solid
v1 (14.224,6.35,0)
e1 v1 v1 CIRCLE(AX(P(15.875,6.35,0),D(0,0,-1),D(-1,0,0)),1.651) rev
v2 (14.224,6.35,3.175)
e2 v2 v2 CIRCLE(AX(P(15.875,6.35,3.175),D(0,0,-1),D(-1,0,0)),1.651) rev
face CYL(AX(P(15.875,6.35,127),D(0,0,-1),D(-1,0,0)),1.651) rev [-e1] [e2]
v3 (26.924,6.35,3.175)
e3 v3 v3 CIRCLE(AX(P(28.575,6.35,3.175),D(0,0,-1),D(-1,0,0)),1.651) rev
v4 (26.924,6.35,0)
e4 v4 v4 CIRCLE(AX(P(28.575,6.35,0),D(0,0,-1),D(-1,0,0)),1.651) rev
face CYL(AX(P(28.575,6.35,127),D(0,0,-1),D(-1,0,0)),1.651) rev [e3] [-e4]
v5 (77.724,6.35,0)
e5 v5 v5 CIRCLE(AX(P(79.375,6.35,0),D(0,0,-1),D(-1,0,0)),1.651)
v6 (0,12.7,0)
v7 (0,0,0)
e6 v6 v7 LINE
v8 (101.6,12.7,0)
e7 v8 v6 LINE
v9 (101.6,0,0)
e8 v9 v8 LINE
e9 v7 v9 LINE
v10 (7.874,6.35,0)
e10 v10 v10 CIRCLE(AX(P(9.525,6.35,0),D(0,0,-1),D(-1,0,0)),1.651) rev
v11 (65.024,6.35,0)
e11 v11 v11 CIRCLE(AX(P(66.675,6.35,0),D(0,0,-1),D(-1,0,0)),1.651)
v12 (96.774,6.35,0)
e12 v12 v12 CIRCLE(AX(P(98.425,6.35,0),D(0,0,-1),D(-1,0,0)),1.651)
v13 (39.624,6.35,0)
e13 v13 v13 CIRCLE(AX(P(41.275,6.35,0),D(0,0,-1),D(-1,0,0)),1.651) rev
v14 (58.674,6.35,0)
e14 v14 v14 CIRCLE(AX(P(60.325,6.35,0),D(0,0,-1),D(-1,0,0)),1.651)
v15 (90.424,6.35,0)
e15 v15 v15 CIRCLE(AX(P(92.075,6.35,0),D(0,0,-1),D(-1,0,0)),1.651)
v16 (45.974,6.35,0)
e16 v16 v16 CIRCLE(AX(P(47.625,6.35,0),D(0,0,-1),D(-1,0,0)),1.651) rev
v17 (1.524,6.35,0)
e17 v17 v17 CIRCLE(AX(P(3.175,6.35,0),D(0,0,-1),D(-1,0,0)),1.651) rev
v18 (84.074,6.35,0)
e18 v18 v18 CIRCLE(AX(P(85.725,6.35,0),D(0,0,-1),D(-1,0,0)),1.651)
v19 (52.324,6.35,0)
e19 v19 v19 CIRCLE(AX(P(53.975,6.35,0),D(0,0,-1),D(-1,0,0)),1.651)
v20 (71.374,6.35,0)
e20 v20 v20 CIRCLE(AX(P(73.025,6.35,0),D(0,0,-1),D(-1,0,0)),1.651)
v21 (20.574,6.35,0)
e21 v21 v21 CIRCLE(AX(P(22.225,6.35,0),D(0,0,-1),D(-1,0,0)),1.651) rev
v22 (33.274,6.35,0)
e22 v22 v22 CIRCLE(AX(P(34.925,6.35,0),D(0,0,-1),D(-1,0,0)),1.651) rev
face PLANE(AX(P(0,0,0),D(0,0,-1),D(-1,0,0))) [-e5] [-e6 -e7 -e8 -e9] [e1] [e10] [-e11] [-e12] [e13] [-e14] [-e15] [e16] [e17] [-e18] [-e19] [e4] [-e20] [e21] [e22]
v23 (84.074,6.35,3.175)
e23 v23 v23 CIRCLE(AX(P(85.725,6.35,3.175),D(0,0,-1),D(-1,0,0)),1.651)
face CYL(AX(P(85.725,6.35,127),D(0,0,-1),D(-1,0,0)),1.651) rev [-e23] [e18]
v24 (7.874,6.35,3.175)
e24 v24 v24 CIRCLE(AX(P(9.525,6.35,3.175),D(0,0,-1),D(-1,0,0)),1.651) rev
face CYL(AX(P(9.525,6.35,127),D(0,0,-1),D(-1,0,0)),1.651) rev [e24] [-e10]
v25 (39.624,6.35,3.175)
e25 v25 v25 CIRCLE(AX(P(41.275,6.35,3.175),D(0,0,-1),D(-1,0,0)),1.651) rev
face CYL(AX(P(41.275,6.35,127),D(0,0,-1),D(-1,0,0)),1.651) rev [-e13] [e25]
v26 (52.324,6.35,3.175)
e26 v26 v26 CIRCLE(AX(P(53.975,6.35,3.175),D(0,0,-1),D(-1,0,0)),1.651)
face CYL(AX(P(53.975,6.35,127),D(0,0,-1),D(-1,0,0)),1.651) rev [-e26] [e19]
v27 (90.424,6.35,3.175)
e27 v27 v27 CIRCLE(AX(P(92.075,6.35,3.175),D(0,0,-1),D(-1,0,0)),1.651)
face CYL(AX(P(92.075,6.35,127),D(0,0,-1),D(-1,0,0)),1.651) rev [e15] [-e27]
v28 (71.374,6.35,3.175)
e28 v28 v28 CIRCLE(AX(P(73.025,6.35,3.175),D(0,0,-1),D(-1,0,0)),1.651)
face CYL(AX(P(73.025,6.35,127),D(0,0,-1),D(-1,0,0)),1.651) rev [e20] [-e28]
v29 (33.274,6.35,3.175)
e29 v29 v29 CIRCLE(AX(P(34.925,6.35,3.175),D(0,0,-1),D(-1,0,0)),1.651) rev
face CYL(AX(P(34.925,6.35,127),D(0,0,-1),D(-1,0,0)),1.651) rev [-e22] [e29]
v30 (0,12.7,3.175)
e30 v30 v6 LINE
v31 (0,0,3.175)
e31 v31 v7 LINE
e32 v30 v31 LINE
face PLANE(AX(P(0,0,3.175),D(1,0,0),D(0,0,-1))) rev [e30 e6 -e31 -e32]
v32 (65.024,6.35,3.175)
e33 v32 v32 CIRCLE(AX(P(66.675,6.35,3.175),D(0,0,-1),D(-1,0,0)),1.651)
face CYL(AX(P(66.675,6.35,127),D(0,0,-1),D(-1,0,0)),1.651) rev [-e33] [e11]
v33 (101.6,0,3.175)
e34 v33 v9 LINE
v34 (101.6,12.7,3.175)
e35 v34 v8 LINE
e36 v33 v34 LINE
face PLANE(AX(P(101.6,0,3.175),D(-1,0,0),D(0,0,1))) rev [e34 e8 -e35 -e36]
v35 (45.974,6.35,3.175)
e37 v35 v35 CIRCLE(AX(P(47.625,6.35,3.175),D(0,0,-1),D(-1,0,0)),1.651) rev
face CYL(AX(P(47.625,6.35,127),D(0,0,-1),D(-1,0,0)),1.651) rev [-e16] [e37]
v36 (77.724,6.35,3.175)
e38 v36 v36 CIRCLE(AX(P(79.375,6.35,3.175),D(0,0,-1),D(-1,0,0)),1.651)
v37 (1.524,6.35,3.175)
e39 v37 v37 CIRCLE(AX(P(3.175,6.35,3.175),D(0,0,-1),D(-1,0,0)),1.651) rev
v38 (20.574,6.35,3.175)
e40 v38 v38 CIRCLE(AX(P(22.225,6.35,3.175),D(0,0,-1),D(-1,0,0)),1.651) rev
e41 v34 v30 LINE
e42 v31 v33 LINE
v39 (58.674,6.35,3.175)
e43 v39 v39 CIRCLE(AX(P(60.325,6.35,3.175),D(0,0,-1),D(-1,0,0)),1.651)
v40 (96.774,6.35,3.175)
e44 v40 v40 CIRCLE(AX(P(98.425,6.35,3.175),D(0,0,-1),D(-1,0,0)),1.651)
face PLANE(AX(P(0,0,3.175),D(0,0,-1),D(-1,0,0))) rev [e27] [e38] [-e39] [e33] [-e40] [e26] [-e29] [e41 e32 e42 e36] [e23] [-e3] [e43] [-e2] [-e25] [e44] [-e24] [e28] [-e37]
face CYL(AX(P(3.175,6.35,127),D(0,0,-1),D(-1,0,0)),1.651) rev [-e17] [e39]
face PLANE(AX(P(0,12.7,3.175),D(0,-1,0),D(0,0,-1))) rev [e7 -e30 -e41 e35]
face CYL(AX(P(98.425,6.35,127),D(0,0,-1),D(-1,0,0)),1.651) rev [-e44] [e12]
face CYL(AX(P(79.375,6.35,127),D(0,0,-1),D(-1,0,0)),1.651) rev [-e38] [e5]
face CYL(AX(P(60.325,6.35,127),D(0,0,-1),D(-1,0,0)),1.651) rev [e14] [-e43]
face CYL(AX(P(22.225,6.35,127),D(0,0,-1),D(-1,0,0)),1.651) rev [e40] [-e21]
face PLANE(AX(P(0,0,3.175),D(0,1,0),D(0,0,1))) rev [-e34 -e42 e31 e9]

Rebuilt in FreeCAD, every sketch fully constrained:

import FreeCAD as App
import Part
import Sketcher
from FreeCAD import Vector
Q = App.Units.Quantity


def add_polygon(sketch, points):
    """Adds a closed chain of lines whose ends are joined by coincident constraints."""
    first, n = sketch.GeometryCount, len(points)
    for a, b in zip(points, points[1:] + points[:1]):
        sketch.addGeometry(Part.LineSegment(App.Vector(*a, 0), App.Vector(*b, 0)), False)
    for i in range(n):
        sketch.addConstraint(Sketcher.Constraint("Coincident", first + i, 2, first + (i + 1) % n, 1))

doc = App.newDocument("Part")
body = doc.addObject("PartDesign::Body", "Body")

# Sketch on XY plane
sketch1 = doc.addObject("Sketcher::SketchObject", "Sketch")
body.addObject(sketch1)
sketch1.AttachmentSupport = (doc.XY_Plane, [""])
sketch1.MapMode = "FlatFace"
add_polygon(sketch1, [(0, 12.7), (0, 0), (101.6, 0), (101.6, 12.7)])  # lines 0-3
sketch1.addConstraint([
    Sketcher.Constraint("Vertical", 0),
    Sketcher.Constraint("Horizontal", 1),
    Sketcher.Constraint("Vertical", 2),
    Sketcher.Constraint("Horizontal", 3),
    Sketcher.Constraint("Coincident", 0, 2, -1, 1),
    Sketcher.Constraint("DistanceX", 1, 1, 1, 2, Q("4 in")),
    Sketcher.Constraint("DistanceY", 0, 2, 0, 1, Q("0.5 in")),
])
pad1 = doc.addObject("PartDesign::Pad", "Pad")
body.addObject(pad1)
pad1.Profile = sketch1
pad1.Length = Q("0.125 in")

# Sketch on XY plane
sketch2 = doc.addObject("Sketcher::SketchObject", "Sketch001")
body.addObject(sketch2)
sketch2.AttachmentSupport = (doc.XY_Plane, [""])
sketch2.MapMode = "FlatFace"
sketch2.addGeometry([
    Part.Circle(Vector(3.175, 6.35, 0), Vector(0, 0, 1), 1.651),  # 0
    Part.Circle(Vector(9.525, 6.35, 0), Vector(0, 0, 1), 1.651),  # 1
    Part.Circle(Vector(15.875, 6.35, 0), Vector(0, 0, 1), 1.651),  # 2
    Part.Circle(Vector(22.225, 6.35, 0), Vector(0, 0, 1), 1.651),  # 3
    Part.Circle(Vector(28.575, 6.35, 0), Vector(0, 0, 1), 1.651),  # 4
    Part.Circle(Vector(34.925, 6.35, 0), Vector(0, 0, 1), 1.651),  # 5
    Part.Circle(Vector(41.275, 6.35, 0), Vector(0, 0, 1), 1.651),  # 6
    Part.Circle(Vector(47.625, 6.35, 0), Vector(0, 0, 1), 1.651),  # 7
    Part.Circle(Vector(53.975, 6.35, 0), Vector(0, 0, 1), 1.651),  # 8
    Part.Circle(Vector(60.325, 6.35, 0), Vector(0, 0, 1), 1.651),  # 9
    Part.Circle(Vector(66.675, 6.35, 0), Vector(0, 0, 1), 1.651),  # 10
    Part.Circle(Vector(73.025, 6.35, 0), Vector(0, 0, 1), 1.651),  # 11
    Part.Circle(Vector(79.375, 6.35, 0), Vector(0, 0, 1), 1.651),  # 12
    Part.Circle(Vector(85.725, 6.35, 0), Vector(0, 0, 1), 1.651),  # 13
    Part.Circle(Vector(92.075, 6.35, 0), Vector(0, 0, 1), 1.651),  # 14
    Part.Circle(Vector(98.425, 6.35, 0), Vector(0, 0, 1), 1.651),  # 15
], False)
sketch2.addConstraint([
    Sketcher.Constraint("Equal", 0, 1),
    Sketcher.Constraint("Equal", 1, 2),
    Sketcher.Constraint("Equal", 2, 3),
    Sketcher.Constraint("Equal", 3, 4),
    Sketcher.Constraint("Equal", 4, 5),
    Sketcher.Constraint("Equal", 5, 6),
    Sketcher.Constraint("Equal", 6, 7),
    Sketcher.Constraint("Equal", 7, 8),
    Sketcher.Constraint("Equal", 8, 9),
    Sketcher.Constraint("Equal", 9, 10),
    Sketcher.Constraint("Equal", 10, 11),
    Sketcher.Constraint("Equal", 11, 12),
    Sketcher.Constraint("Equal", 12, 13),
    Sketcher.Constraint("Equal", 13, 14),
    Sketcher.Constraint("Equal", 14, 15),
    Sketcher.Constraint("Horizontal", 0, 3, 1, 3),
    Sketcher.Constraint("Horizontal", 1, 3, 2, 3),
    Sketcher.Constraint("Horizontal", 2, 3, 3, 3),
    Sketcher.Constraint("Horizontal", 3, 3, 4, 3),
    Sketcher.Constraint("Horizontal", 4, 3, 5, 3),
    Sketcher.Constraint("Horizontal", 5, 3, 6, 3),
    Sketcher.Constraint("Horizontal", 6, 3, 7, 3),
    Sketcher.Constraint("Horizontal", 7, 3, 8, 3),
    Sketcher.Constraint("Horizontal", 8, 3, 9, 3),
    Sketcher.Constraint("Horizontal", 9, 3, 10, 3),
    Sketcher.Constraint("Horizontal", 10, 3, 11, 3),
    Sketcher.Constraint("Horizontal", 11, 3, 12, 3),
    Sketcher.Constraint("Horizontal", 12, 3, 13, 3),
    Sketcher.Constraint("Horizontal", 13, 3, 14, 3),
    Sketcher.Constraint("Horizontal", 14, 3, 15, 3),
    Sketcher.Constraint("Diameter", 0, Q("0.13 in")),
    Sketcher.Constraint("DistanceX", 0, 3, 4, 3, Q("1 in")),
    Sketcher.Constraint("DistanceX", 1, 3, 5, 3, Q("1 in")),
    Sketcher.Constraint("DistanceX", 2, 3, 6, 3, Q("1 in")),
    Sketcher.Constraint("DistanceX", 3, 3, 7, 3, Q("1 in")),
    Sketcher.Constraint("DistanceX", 4, 3, 8, 3, Q("1 in")),
    Sketcher.Constraint("DistanceX", 5, 3, 9, 3, Q("1 in")),
    Sketcher.Constraint("DistanceX", 6, 3, 10, 3, Q("1 in")),
    Sketcher.Constraint("DistanceX", 7, 3, 11, 3, Q("1 in")),
    Sketcher.Constraint("DistanceX", 8, 3, 12, 3, Q("1 in")),
    Sketcher.Constraint("DistanceX", 9, 3, 13, 3, Q("1 in")),
    Sketcher.Constraint("DistanceX", 10, 3, 14, 3, Q("1 in")),
    Sketcher.Constraint("DistanceX", 11, 3, 15, 3, Q("1 in")),
    Sketcher.Constraint("DistanceX", 0, 3, 2, 3, Q("0.5 in")),
    Sketcher.Constraint("DistanceX", 1, 3, 3, 3, Q("0.5 in")),
    Sketcher.Constraint("DistanceY", -1, 1, 0, 3, Q("0.25 in")),
    Sketcher.Constraint("DistanceX", 0, 3, 1, 3, Q("0.25 in")),
    Sketcher.Constraint("DistanceX", -1, 1, 0, 3, Q("0.125 in")),
])
pocket1 = doc.addObject("PartDesign::Pocket", "Pocket")
body.addObject(pocket1)
pocket1.Profile = sketch2
pocket1.Type = "ThroughAll"
pocket1.Midplane = True

doc.recompute()
